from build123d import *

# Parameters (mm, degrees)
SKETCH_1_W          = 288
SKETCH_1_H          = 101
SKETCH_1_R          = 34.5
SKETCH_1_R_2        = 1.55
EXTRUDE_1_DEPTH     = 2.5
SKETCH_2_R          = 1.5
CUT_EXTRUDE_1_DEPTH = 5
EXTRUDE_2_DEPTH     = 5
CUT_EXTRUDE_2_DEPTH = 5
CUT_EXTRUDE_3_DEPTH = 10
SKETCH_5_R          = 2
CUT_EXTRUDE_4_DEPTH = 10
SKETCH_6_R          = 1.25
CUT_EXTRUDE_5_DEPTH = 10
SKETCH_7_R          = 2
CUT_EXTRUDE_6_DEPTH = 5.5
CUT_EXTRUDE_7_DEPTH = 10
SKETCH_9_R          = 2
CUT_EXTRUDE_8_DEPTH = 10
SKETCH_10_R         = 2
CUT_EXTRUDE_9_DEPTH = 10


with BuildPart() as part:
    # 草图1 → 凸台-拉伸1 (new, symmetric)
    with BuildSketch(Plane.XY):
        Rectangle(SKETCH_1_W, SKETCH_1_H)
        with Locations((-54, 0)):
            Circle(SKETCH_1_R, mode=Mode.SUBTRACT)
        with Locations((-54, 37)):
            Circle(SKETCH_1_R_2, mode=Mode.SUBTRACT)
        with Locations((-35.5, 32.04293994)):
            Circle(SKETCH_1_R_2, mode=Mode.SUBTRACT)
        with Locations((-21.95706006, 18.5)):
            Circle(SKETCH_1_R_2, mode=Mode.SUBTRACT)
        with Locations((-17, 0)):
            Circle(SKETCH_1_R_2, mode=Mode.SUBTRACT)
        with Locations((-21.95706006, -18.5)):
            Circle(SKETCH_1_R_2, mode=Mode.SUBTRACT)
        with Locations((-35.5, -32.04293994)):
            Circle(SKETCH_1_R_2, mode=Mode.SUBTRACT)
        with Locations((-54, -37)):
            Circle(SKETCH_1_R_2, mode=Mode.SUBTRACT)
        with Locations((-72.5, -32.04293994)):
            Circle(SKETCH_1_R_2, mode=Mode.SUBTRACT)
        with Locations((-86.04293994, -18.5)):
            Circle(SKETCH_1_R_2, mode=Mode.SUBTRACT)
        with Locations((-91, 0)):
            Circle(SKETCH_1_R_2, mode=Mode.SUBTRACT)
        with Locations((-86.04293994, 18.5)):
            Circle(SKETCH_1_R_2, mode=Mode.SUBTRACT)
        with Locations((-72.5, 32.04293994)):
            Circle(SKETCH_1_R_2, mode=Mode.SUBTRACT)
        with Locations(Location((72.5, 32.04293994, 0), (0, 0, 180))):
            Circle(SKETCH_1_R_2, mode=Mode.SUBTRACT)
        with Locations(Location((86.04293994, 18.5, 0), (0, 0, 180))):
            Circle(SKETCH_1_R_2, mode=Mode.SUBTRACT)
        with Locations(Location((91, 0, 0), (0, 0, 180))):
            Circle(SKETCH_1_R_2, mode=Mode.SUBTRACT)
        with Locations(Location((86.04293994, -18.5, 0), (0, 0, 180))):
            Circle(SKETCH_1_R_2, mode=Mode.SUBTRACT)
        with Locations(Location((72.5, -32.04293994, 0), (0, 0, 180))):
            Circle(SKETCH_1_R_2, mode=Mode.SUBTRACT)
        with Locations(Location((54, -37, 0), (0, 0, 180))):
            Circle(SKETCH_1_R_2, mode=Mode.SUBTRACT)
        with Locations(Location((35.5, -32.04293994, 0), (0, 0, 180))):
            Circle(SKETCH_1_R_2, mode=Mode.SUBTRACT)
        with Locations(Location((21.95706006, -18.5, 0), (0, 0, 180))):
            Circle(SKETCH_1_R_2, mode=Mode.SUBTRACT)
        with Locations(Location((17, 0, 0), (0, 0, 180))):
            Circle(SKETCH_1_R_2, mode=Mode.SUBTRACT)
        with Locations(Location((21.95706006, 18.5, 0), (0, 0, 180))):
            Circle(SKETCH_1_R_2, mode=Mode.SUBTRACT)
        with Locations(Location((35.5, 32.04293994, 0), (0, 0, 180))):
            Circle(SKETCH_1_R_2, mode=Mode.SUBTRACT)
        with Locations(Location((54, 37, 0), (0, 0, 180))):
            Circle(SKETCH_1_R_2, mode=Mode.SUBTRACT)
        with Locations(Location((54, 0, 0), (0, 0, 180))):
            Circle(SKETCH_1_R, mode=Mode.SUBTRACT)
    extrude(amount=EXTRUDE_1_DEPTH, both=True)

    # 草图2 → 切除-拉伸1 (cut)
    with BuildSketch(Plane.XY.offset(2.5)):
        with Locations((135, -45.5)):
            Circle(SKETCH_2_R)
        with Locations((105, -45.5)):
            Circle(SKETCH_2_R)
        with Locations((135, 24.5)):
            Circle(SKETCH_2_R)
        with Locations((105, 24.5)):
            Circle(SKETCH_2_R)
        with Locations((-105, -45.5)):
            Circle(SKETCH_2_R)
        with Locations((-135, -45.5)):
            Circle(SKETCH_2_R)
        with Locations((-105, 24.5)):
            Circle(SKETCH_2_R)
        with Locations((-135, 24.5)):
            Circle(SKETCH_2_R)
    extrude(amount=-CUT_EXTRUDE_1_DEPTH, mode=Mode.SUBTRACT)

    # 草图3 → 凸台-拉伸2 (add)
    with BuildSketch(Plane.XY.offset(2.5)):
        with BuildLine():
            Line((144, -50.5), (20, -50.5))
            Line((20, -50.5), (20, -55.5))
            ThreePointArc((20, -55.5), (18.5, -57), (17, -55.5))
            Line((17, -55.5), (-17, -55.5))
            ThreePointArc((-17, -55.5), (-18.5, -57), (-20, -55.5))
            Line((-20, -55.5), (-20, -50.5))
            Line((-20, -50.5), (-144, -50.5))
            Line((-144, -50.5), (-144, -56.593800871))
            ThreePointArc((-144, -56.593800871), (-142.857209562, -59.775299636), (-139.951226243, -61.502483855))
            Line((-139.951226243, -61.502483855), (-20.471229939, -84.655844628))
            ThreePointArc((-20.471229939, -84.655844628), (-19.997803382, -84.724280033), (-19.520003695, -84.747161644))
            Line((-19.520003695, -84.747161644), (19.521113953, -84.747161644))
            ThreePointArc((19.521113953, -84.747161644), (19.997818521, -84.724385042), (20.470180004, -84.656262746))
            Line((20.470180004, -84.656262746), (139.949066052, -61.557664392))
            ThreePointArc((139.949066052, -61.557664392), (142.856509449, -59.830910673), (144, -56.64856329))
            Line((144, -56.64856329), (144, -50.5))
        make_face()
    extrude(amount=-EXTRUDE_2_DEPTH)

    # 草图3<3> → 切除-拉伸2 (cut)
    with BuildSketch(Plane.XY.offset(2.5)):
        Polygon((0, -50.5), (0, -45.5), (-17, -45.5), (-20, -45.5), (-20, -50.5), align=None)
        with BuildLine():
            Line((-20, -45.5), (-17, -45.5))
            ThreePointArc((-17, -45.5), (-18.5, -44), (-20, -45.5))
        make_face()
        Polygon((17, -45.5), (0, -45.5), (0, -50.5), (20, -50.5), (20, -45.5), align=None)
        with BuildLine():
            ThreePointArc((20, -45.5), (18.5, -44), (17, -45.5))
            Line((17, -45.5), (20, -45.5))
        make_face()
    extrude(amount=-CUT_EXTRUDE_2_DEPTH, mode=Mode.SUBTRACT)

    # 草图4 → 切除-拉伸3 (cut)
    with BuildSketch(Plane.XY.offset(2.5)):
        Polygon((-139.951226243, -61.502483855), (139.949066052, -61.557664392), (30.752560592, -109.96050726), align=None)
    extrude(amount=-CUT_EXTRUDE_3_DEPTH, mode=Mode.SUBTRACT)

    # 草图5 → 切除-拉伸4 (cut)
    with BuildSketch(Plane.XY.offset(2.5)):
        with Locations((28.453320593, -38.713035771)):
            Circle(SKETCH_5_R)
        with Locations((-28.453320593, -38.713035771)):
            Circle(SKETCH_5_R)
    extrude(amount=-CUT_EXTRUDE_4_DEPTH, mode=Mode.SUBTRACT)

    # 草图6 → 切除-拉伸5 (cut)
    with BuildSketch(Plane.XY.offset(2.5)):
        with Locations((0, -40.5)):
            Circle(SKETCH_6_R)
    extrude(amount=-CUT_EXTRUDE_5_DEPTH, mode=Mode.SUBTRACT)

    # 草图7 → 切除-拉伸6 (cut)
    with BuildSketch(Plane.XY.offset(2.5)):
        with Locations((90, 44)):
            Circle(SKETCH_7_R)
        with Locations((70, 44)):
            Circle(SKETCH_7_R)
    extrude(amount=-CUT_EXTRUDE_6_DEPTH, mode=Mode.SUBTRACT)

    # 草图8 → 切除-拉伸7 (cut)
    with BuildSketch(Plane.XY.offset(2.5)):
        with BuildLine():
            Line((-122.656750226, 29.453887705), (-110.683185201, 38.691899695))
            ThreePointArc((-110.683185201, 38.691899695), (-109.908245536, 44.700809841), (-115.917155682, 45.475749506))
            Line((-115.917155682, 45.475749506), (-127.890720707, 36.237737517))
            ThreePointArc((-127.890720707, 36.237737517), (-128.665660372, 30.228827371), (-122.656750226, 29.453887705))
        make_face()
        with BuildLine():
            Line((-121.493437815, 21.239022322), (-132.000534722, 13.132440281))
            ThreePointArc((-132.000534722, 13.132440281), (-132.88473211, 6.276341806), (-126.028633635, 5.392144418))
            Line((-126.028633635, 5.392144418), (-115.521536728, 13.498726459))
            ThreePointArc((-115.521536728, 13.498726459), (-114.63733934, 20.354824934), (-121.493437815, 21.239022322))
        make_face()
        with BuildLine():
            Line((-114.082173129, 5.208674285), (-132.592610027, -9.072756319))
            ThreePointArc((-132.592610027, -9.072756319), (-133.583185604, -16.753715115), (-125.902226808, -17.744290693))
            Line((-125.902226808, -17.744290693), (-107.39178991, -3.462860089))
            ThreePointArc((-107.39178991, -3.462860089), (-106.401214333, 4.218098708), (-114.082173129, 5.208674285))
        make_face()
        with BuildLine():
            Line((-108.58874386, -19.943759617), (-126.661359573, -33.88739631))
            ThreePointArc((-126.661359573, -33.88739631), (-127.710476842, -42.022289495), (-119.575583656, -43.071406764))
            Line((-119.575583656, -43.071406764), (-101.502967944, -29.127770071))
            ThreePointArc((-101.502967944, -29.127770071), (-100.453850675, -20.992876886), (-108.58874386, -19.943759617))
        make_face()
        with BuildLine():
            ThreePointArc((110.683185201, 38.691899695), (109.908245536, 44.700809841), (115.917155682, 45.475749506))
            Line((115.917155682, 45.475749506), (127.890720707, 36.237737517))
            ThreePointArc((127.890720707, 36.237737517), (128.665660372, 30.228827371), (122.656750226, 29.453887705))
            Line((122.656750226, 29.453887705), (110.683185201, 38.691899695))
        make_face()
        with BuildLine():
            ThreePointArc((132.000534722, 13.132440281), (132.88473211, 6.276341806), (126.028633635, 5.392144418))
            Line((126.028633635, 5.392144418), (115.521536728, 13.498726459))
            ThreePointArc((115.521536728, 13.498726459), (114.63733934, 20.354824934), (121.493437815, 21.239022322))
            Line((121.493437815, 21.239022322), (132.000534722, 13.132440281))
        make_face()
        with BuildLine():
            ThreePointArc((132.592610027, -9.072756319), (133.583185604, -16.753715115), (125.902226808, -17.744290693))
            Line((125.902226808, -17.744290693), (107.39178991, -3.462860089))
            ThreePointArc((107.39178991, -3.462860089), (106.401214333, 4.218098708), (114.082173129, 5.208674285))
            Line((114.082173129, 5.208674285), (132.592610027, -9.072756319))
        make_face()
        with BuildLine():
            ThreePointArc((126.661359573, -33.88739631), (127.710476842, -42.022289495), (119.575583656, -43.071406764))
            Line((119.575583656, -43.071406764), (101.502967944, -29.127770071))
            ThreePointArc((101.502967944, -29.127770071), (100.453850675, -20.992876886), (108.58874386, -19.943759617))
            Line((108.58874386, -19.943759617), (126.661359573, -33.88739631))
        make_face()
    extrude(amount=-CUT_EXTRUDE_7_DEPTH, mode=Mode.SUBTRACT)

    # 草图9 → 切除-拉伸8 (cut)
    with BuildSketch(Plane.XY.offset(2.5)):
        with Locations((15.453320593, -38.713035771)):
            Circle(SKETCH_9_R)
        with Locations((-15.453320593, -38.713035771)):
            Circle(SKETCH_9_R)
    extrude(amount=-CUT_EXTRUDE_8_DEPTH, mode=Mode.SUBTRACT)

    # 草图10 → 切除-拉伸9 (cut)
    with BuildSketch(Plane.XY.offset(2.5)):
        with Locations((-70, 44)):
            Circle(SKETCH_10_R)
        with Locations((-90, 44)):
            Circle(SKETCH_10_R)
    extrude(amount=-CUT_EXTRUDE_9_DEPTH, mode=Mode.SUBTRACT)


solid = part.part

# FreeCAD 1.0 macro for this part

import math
import FreeCAD as App
import Part
import Sketcher

doc = App.newDocument("Part")
body = doc.addObject("PartDesign::Body", "Body")

sketch1 = body.newObject("Sketcher::SketchObject", "Sketch")
sketch1.AttachmentSupport = (doc.getObject("XY_Plane"), [""])
sketch1.MapMode = "FlatFace"
sketch1.addGeometry(Part.LineSegment(App.Vector(-144, 50.5, 0), App.Vector(-144, -50.5, 0)), False)
sketch1.addGeometry(Part.LineSegment(App.Vector(-144, -50.5, 0), App.Vector(144, -50.5, 0)), False)
sketch1.addGeometry(Part.LineSegment(App.Vector(144, -50.5, 0), App.Vector(144, 50.5, 0)), False)
sketch1.addGeometry(Part.LineSegment(App.Vector(144, 50.5, 0), App.Vector(-144, 50.5, 0)), False)
sketch1.addGeometry(Part.Circle(App.Vector(-72.5, -32, 0), App.Vector(0, 0, 1), 1.6), False)
sketch1.addGeometry(Part.Circle(App.Vector(-54, -37, 0), App.Vector(0, 0, 1), 1.6), False)
sketch1.addGeometry(Part.Circle(App.Vector(-35.5, -32, 0), App.Vector(0, 0, 1), 1.6), False)
sketch1.addGeometry(Part.Circle(App.Vector(-86, -18.5, 0), App.Vector(0, 0, 1), 1.6), False)
sketch1.addGeometry(Part.Circle(App.Vector(-22, -18.5, 0), App.Vector(0, 0, 1), 1.6), False)
sketch1.addGeometry(Part.Circle(App.Vector(35.5, -32, 0), App.Vector(0, 0, 1), 1.6), False)
sketch1.addGeometry(Part.Circle(App.Vector(54, -37, 0), App.Vector(0, 0, 1), 1.6), False)
sketch1.addGeometry(Part.Circle(App.Vector(72.5, -32, 0), App.Vector(0, 0, 1), 1.6), False)
sketch1.addGeometry(Part.Circle(App.Vector(22, -18.5, 0), App.Vector(0, 0, 1), 1.6), False)
sketch1.addGeometry(Part.Circle(App.Vector(86, -18.5, 0), App.Vector(0, 0, 1), 1.6), False)
sketch1.addGeometry(Part.Circle(App.Vector(-91, 0, 0), App.Vector(0, 0, 1), 1.6), False)
sketch1.addGeometry(Part.Circle(App.Vector(-54, 0, 0), App.Vector(0, 0, 1), 34.5), False)
sketch1.addGeometry(Part.Circle(App.Vector(-86, 18.5, 0), App.Vector(0, 0, 1), 1.6), False)
sketch1.addGeometry(Part.Circle(App.Vector(-17, 0, 0), App.Vector(0, 0, 1), 1.6), False)
sketch1.addGeometry(Part.Circle(App.Vector(-22, 18.5, 0), App.Vector(0, 0, 1), 1.6), False)
sketch1.addGeometry(Part.Circle(App.Vector(-72.5, 32, 0), App.Vector(0, 0, 1), 1.6), False)
sketch1.addGeometry(Part.Circle(App.Vector(-54, 37, 0), App.Vector(0, 0, 1), 1.6), False)
sketch1.addGeometry(Part.Circle(App.Vector(-35.5, 32, 0), App.Vector(0, 0, 1), 1.6), False)
sketch1.addGeometry(Part.Circle(App.Vector(17, 0, 0), App.Vector(0, 0, 1), 1.6), False)
sketch1.addGeometry(Part.Circle(App.Vector(22, 18.5, 0), App.Vector(0, 0, 1), 1.6), False)
sketch1.addGeometry(Part.Circle(App.Vector(54, 0, 0), App.Vector(0, 0, 1), 34.5), False)
sketch1.addGeometry(Part.Circle(App.Vector(91, 0, 0), App.Vector(0, 0, 1), 1.6), False)
sketch1.addGeometry(Part.Circle(App.Vector(86, 18.5, 0), App.Vector(0, 0, 1), 1.6), False)
sketch1.addGeometry(Part.Circle(App.Vector(35.5, 32, 0), App.Vector(0, 0, 1), 1.6), False)
sketch1.addGeometry(Part.Circle(App.Vector(54, 37, 0), App.Vector(0, 0, 1), 1.6), False)
sketch1.addGeometry(Part.Circle(App.Vector(72.5, 32, 0), App.Vector(0, 0, 1), 1.6), False)
sketch1.addConstraint(Sketcher.Constraint("Coincident", 0, 2, 1, 1))
sketch1.addConstraint(Sketcher.Constraint("Coincident", 1, 2, 2, 1))
sketch1.addConstraint(Sketcher.Constraint("Coincident", 2, 2, 3, 1))
sketch1.addConstraint(Sketcher.Constraint("Coincident", 3, 2, 0, 1))
sketch1.addConstraint(Sketcher.Constraint("Vertical", 0))
sketch1.addConstraint(Sketcher.Constraint("Horizontal", 1))
sketch1.addConstraint(Sketcher.Constraint("Vertical", 2))
sketch1.addConstraint(Sketcher.Constraint("Horizontal", 3))
sketch1.addConstraint(Sketcher.Constraint("Equal", 4, 5))
sketch1.addConstraint(Sketcher.Constraint("Equal", 5, 6))
sketch1.addConstraint(Sketcher.Constraint("Equal", 6, 7))
sketch1.addConstraint(Sketcher.Constraint("Equal", 7, 8))
sketch1.addConstraint(Sketcher.Constraint("Equal", 8, 9))
sketch1.addConstraint(Sketcher.Constraint("Equal", 9, 10))
sketch1.addConstraint(Sketcher.Constraint("Equal", 10, 11))
sketch1.addConstraint(Sketcher.Constraint("Equal", 11, 12))
sketch1.addConstraint(Sketcher.Constraint("Equal", 12, 13))
sketch1.addConstraint(Sketcher.Constraint("Equal", 13, 14))
sketch1.addConstraint(Sketcher.Constraint("Equal", 14, 16))
sketch1.addConstraint(Sketcher.Constraint("Equal", 16, 17))
sketch1.addConstraint(Sketcher.Constraint("Equal", 17, 18))
sketch1.addConstraint(Sketcher.Constraint("Equal", 18, 19))
sketch1.addConstraint(Sketcher.Constraint("Equal", 19, 20))
sketch1.addConstraint(Sketcher.Constraint("Equal", 20, 21))
sketch1.addConstraint(Sketcher.Constraint("Equal", 21, 22))
sketch1.addConstraint(Sketcher.Constraint("Equal", 22, 23))
sketch1.addConstraint(Sketcher.Constraint("Equal", 15, 24))
sketch1.addConstraint(Sketcher.Constraint("Equal", 23, 25))
sketch1.addConstraint(Sketcher.Constraint("Equal", 25, 26))
sketch1.addConstraint(Sketcher.Constraint("Equal", 26, 27))
sketch1.addConstraint(Sketcher.Constraint("Equal", 27, 28))
sketch1.addConstraint(Sketcher.Constraint("Equal", 28, 29))
sketch1.addConstraint(Sketcher.Constraint("Symmetric", 13, 3, 16, 3, -1, 1))
sketch1.addConstraint(Sketcher.Constraint("Symmetric", 12, 3, 18, 3, -1, 1))
sketch1.addConstraint(Sketcher.Constraint("Symmetric", 11, 3, 19, 3, -1, 1))
sketch1.addConstraint(Sketcher.Constraint("Symmetric", 10, 3, 20, 3, -1, 1))
sketch1.addConstraint(Sketcher.Constraint("Symmetric", 9, 3, 21, 3, -1, 1))
sketch1.addConstraint(Sketcher.Constraint("Symmetric", 17, 3, 22, 3, -1, 1))
sketch1.addConstraint(Sketcher.Constraint("Symmetric", 8, 3, 23, 3, -1, 1))
sketch1.addConstraint(Sketcher.Constraint("Symmetric", 15, 3, 24, 3, -1, 1))
sketch1.addConstraint(Sketcher.Constraint("Symmetric", 14, 3, 25, 3, -1, 1))
sketch1.addConstraint(Sketcher.Constraint("Symmetric", 7, 3, 26, 3, -1, 1))
sketch1.addConstraint(Sketcher.Constraint("Symmetric", 6, 3, 27, 3, -1, 1))
sketch1.addConstraint(Sketcher.Constraint("Symmetric", 5, 3, 28, 3, -1, 1))
sketch1.addConstraint(Sketcher.Constraint("Symmetric", 4, 3, 29, 3, -1, 1))
sketch1.addConstraint(Sketcher.Constraint("Symmetric", 0, 2, 2, 2, -1, 1))
sketch1.addConstraint(Sketcher.Constraint("Symmetric", 6, 3, 9, 3, -2))
sketch1.addConstraint(Sketcher.Constraint("Symmetric", 5, 3, 10, 3, -2))
sketch1.addConstraint(Sketcher.Constraint("Symmetric", 4, 3, 11, 3, -2))
sketch1.addConstraint(Sketcher.Constraint("Symmetric", 8, 3, 12, 3, -2))
sketch1.addConstraint(Sketcher.Constraint("Symmetric", 7, 3, 13, 3, -2))
sketch1.addConstraint(Sketcher.Constraint("PointOnObject", 14, 3, -1))
sketch1.addConstraint(Sketcher.Constraint("PointOnObject", 15, 3, -1))
sketch1.addConstraint(Sketcher.Constraint("PointOnObject", 17, 3, -1))
sketch1.addConstraint(Sketcher.Constraint("Horizontal", 4, 3, 6, 3))
sketch1.addConstraint(Sketcher.Constraint("Horizontal", 7, 3, 8, 3))
sketch1.addConstraint(Sketcher.Constraint("Vertical", 5, 3, 15, 3))
sketch1.addConstraint(Sketcher.Constraint("Diameter", 15, 69.0))
sketch1.addConstraint(Sketcher.Constraint("Diameter", 4, 3.1))
sketch1.addConstraint(Sketcher.Constraint("DistanceX", 1, 1, 1, 2, 288.0))
sketch1.addConstraint(Sketcher.Constraint("DistanceY", 0, 2, 0, 1, 101.0))
sketch1.addConstraint(Sketcher.Constraint("DistanceX", 5, 3, -1, 1, 54.0))
sketch1.addConstraint(Sketcher.Constraint("DistanceY", 5, 3, -1, 1, 37.0))
sketch1.addConstraint(Sketcher.Constraint("DistanceX", 14, 3, -1, 1, 91.0))
sketch1.addConstraint(Sketcher.Constraint("DistanceX", 17, 3, -1, 1, 17.0))
sketch1.addConstraint(Sketcher.Constraint("DistanceX", 4, 3, 6, 3, 37.0))
sketch1.addConstraint(Sketcher.Constraint("DistanceX", 6, 3, 9, 3, 71.0))
sketch1.addConstraint(Sketcher.Constraint("DistanceX", 8, 3, 13, 3, 108.0))
sketch1.addConstraint(Sketcher.Constraint("DistanceY", 7, 3, 16, 3, 37.0))
sketch1.addConstraint(Sketcher.Constraint("DistanceY", 4, 3, -1, 1, 32.04294))
sketch1.addConstraint(Sketcher.Constraint("DistanceX", 7, 3, -1, 1, 86.04294))
pad1 = body.newObject("PartDesign::Pad", "Pad")
pad1.Profile = sketch1
pad1.Length = 5
pad1.Midplane = True

sketch2 = body.newObject("Sketcher::SketchObject", "Sketch001")
sketch2.AttachmentSupport = (doc.getObject("XY_Plane"), [""])
sketch2.MapMode = "FlatFace"
sketch2.AttachmentOffset = App.Placement(App.Vector(0, 0, 2.5), App.Rotation())
sketch2.addGeometry(Part.Circle(App.Vector(135, -45.5, 0), App.Vector(0, 0, 1), 1.5), False)
sketch2.addGeometry(Part.Circle(App.Vector(105, -45.5, 0), App.Vector(0, 0, 1), 1.5), False)
sketch2.addGeometry(Part.Circle(App.Vector(135, 24.5, 0), App.Vector(0, 0, 1), 1.5), False)
sketch2.addGeometry(Part.Circle(App.Vector(105, 24.5, 0), App.Vector(0, 0, 1), 1.5), False)
sketch2.addGeometry(Part.Circle(App.Vector(-105, -45.5, 0), App.Vector(0, 0, 1), 1.5), False)
sketch2.addGeometry(Part.Circle(App.Vector(-135, -45.5, 0), App.Vector(0, 0, 1), 1.5), False)
sketch2.addGeometry(Part.Circle(App.Vector(-105, 24.5, 0), App.Vector(0, 0, 1), 1.5), False)
sketch2.addGeometry(Part.Circle(App.Vector(-135, 24.5, 0), App.Vector(0, 0, 1), 1.5), False)
sketch2.addConstraint(Sketcher.Constraint("Equal", 0, 1))
sketch2.addConstraint(Sketcher.Constraint("Equal", 1, 2))
sketch2.addConstraint(Sketcher.Constraint("Equal", 2, 3))
sketch2.addConstraint(Sketcher.Constraint("Equal", 3, 4))
sketch2.addConstraint(Sketcher.Constraint("Equal", 4, 5))
sketch2.addConstraint(Sketcher.Constraint("Equal", 5, 6))
sketch2.addConstraint(Sketcher.Constraint("Equal", 6, 7))
sketch2.addConstraint(Sketcher.Constraint("Symmetric", 1, 3, 4, 3, -2))
sketch2.addConstraint(Sketcher.Constraint("Symmetric", 0, 3, 5, 3, -2))
sketch2.addConstraint(Sketcher.Constraint("Symmetric", 3, 3, 6, 3, -2))
sketch2.addConstraint(Sketcher.Constraint("Symmetric", 2, 3, 7, 3, -2))
sketch2.addConstraint(Sketcher.Constraint("Horizontal", 0, 3, 1, 3))
sketch2.addConstraint(Sketcher.Constraint("Horizontal", 2, 3, 3, 3))
sketch2.addConstraint(Sketcher.Constraint("Vertical", 0, 3, 2, 3))
sketch2.addConstraint(Sketcher.Constraint("Vertical", 1, 3, 3, 3))
sketch2.addConstraint(Sketcher.Constraint("Diameter", 0, 3.0))
sketch2.addConstraint(Sketcher.Constraint("DistanceX", -1, 1, 0, 3, 135.0))
sketch2.addConstraint(Sketcher.Constraint("DistanceX", -1, 1, 1, 3, 105.0))
sketch2.addConstraint(Sketcher.Constraint("DistanceY", 0, 3, 2, 3, 70.0))
sketch2.addConstraint(Sketcher.Constraint("DistanceY", 0, 3, -1, 1, 45.5))
pocket1 = body.newObject("PartDesign::Pocket", "Pocket")
pocket1.Profile = sketch2
pocket1.Length = 5

sketch3 = body.newObject("Sketcher::SketchObject", "Sketch002")
sketch3.AttachmentSupport = (doc.getObject("XY_Plane"), [""])
sketch3.MapMode = "FlatFace"
sketch3.AttachmentOffset = App.Placement(App.Vector(0, 0, 2.5), App.Rotation())
sketch3.addGeometry(Part.LineSegment(App.Vector(144, -50.5, 0), App.Vector(20, -50.5, 0)), False)
sketch3.addGeometry(Part.LineSegment(App.Vector(20, -50.5, 0), App.Vector(20, -55.5, 0)), False)
sketch3.addGeometry(Part.ArcOfCircle(Part.Circle(App.Vector(18.5, -55.5, 0), App.Vector(0, 0, 1), 1.5), math.radians(180), math.radians(360)), False)
sketch3.addGeometry(Part.LineSegment(App.Vector(17, -55.5, 0), App.Vector(-17, -55.5, 0)), False)
sketch3.addGeometry(Part.ArcOfCircle(Part.Circle(App.Vector(-18.5, -55.5, 0), App.Vector(0, 0, 1), 1.5), math.radians(180), math.radians(360)), False)
sketch3.addGeometry(Part.LineSegment(App.Vector(-20, -55.5, 0), App.Vector(-20, -50.5, 0)), False)
sketch3.addGeometry(Part.LineSegment(App.Vector(-20, -50.5, 0), App.Vector(-144, -50.5, 0)), False)
sketch3.addGeometry(Part.LineSegment(App.Vector(-144, -50.5, 0), App.Vector(-144, -56.6, 0)), False)
sketch3.addGeometry(Part.ArcOfCircle(Part.Circle(App.Vector(-139, -56.6, 0), App.Vector(0, 0, 1), 5), math.radians(-180), math.radians(-101)), False)
sketch3.addGeometry(Part.LineSegment(App.Vector(-140, -61.5, 0), App.Vector(-20.5, -84.7, 0)), False)
sketch3.addGeometry(Part.ArcOfCircle(Part.Circle(App.Vector(-19.5, -79.7, 0), App.Vector(0, 0, 1), 5), math.radians(-100.97), math.radians(-90)), False)
sketch3.addGeometry(Part.LineSegment(App.Vector(-19.5, -84.7, 0), App.Vector(19.5, -84.7, 0)), False)
sketch3.addGeometry(Part.ArcOfCircle(Part.Circle(App.Vector(19.5, -79.7, 0), App.Vector(0, 0, 1), 5), math.radians(-90), math.radians(-79.06)), False)
sketch3.addGeometry(Part.LineSegment(App.Vector(20.5, -84.7, 0), App.Vector(139.9, -61.6, 0)), False)
sketch3.addGeometry(Part.ArcOfCircle(Part.Circle(App.Vector(139, -56.6, 0), App.Vector(0, 0, 1), 5), math.radians(-79), math.radians(0)), False)
sketch3.addGeometry(Part.LineSegment(App.Vector(144, -56.6, 0), App.Vector(144, -50.5, 0)), False)
sketch3.addConstraint(Sketcher.Constraint("Coincident", 0, 2, 1, 1))
sketch3.addConstraint(Sketcher.Constraint("Tangent", 1, 2, 2, 2))
sketch3.addConstraint(Sketcher.Constraint("Coincident", 2, 1, 3, 1))
sketch3.addConstraint(Sketcher.Constraint("Coincident", 3, 2, 4, 2))
sketch3.addConstraint(Sketcher.Constraint("Tangent", 4, 1, 5, 1))
sketch3.addConstraint(Sketcher.Constraint("Coincident", 5, 2, 6, 1))
sketch3.addConstraint(Sketcher.Constraint("Coincident", 6, 2, 7, 1))
sketch3.addConstraint(Sketcher.Constraint("Tangent", 7, 2, 8, 1))
sketch3.addConstraint(Sketcher.Constraint("Tangent", 8, 2, 9, 1))
sketch3.addConstraint(Sketcher.Constraint("Tangent", 9, 2, 10, 1))
sketch3.addConstraint(Sketcher.Constraint("Tangent", 10, 2, 11, 1))
sketch3.addConstraint(Sketcher.Constraint("Tangent", 11, 2, 12, 1))
sketch3.addConstraint(Sketcher.Constraint("Tangent", 12, 2, 13, 1))
sketch3.addConstraint(Sketcher.Constraint("Tangent", 13, 2, 14, 1))
sketch3.addConstraint(Sketcher.Constraint("Tangent", 14, 2, 15, 1))
sketch3.addConstraint(Sketcher.Constraint("Coincident", 15, 2, 0, 1))
sketch3.addConstraint(Sketcher.Constraint("Horizontal", 0))
sketch3.addConstraint(Sketcher.Constraint("Vertical", 1))
sketch3.addConstraint(Sketcher.Constraint("Horizontal", 3))
sketch3.addConstraint(Sketcher.Constraint("Vertical", 5))
sketch3.addConstraint(Sketcher.Constraint("Horizontal", 6))
sketch3.addConstraint(Sketcher.Constraint("Vertical", 7))
sketch3.addConstraint(Sketcher.Constraint("Horizontal", 11))
sketch3.addConstraint(Sketcher.Constraint("Vertical", 15))
sketch3.addConstraint(Sketcher.Constraint("Equal", 2, 4))
sketch3.addConstraint(Sketcher.Constraint("Equal", 8, 10))
sketch3.addConstraint(Sketcher.Constraint("Equal", 10, 12))
sketch3.addConstraint(Sketcher.Constraint("Equal", 12, 14))
sketch3.addConstraint(Sketcher.Constraint("Symmetric", 2, 3, 4, 3, -2))
sketch3.addConstraint(Sketcher.Constraint("Symmetric", 6, 2, 15, 2, -2))
sketch3.addConstraint(Sketcher.Constraint("Horizontal", 1, 2, 2, 1))
sketch3.addConstraint(Sketcher.Constraint("Radius", 8, 5.0))
sketch3.addConstraint(Sketcher.Constraint("Radius", 2, 1.5))
sketch3.addConstraint(Sketcher.Constraint("DistanceX", 0, 2, 0, 1, 124.0))
sketch3.addConstraint(Sketcher.Constraint("DistanceX", 3, 2, 3, 1, 34.0))
sketch3.addConstraint(Sketcher.Constraint("DistanceY", 1, 2, 1, 1, 5.0))
sketch3.addConstraint(Sketcher.Constraint("DistanceY", 2, 3, -1, 1, 55.5))
sketch3.addConstraint(Sketcher.Constraint("DistanceY", 7, 2, 7, 1, 6.093801))
sketch3.addConstraint(Sketcher.Constraint("Distance", 9, 121.702702))
sketch3.addConstraint(Sketcher.Constraint("DistanceY", 12, 3, 14, 3, 23.098598))
sketch3.addConstraint(Sketcher.Constraint("DistanceX", 11, 1, 11, 2, 39.041118))
sketch3.addConstraint(Sketcher.Constraint("DistanceY", 15, 1, 15, 2, 6.148563))
pad2 = body.newObject("PartDesign::Pad", "Pad001")
pad2.Profile = sketch3
pad2.Length = 5
pad2.Reversed = True

sketch4 = body.newObject("Sketcher::SketchObject", "Sketch003")
sketch4.AttachmentSupport = (doc.getObject("XY_Plane"), [""])
sketch4.MapMode = "FlatFace"
sketch4.AttachmentOffset = App.Placement(App.Vector(0, 0, 2.5), App.Rotation())
sketch4.addGeometry(Part.ArcOfCircle(Part.Circle(App.Vector(-18.5, -45.5, 0), App.Vector(0, 0, 1), 1.5), math.radians(0), math.radians(180)), False)
sketch4.addGeometry(Part.LineSegment(App.Vector(-20, -45.5, 0), App.Vector(-20, -50.5, 0)), False)
sketch4.addGeometry(Part.LineSegment(App.Vector(-20, -50.5, 0), App.Vector(20, -50.5, 0)), False)
sketch4.addGeometry(Part.LineSegment(App.Vector(20, -50.5, 0), App.Vector(20, -45.5, 0)), False)
sketch4.addGeometry(Part.ArcOfCircle(Part.Circle(App.Vector(18.5, -45.5, 0), App.Vector(0, 0, 1), 1.5), math.radians(0), math.radians(180)), False)
sketch4.addGeometry(Part.LineSegment(App.Vector(17, -45.5, 0), App.Vector(-17, -45.5, 0)), False)
sketch4.addConstraint(Sketcher.Constraint("Tangent", 0, 2, 1, 1))
sketch4.addConstraint(Sketcher.Constraint("Coincident", 1, 2, 2, 1))
sketch4.addConstraint(Sketcher.Constraint("Coincident", 2, 2, 3, 1))
sketch4.addConstraint(Sketcher.Constraint("Tangent", 3, 2, 4, 1))
sketch4.addConstraint(Sketcher.Constraint("Coincident", 4, 2, 5, 1))
sketch4.addConstraint(Sketcher.Constraint("Coincident", 5, 2, 0, 1))
sketch4.addConstraint(Sketcher.Constraint("Vertical", 1))
sketch4.addConstraint(Sketcher.Constraint("Horizontal", 2))
sketch4.addConstraint(Sketcher.Constraint("Vertical", 3))
sketch4.addConstraint(Sketcher.Constraint("Horizontal", 5))
sketch4.addConstraint(Sketcher.Constraint("Equal", 0, 4))
sketch4.addConstraint(Sketcher.Constraint("Symmetric", 0, 3, 4, 3, -2))
sketch4.addConstraint(Sketcher.Constraint("Horizontal", 3, 2, 4, 2))
sketch4.addConstraint(Sketcher.Constraint("Radius", 0, 1.5))
sketch4.addConstraint(Sketcher.Constraint("DistanceX", 2, 1, 2, 2, 40.0))
sketch4.addConstraint(Sketcher.Constraint("DistanceY", 1, 2, 1, 1, 5.0))
sketch4.addConstraint(Sketcher.Constraint("DistanceY", 0, 3, -1, 1, 45.5))
pocket2 = body.newObject("PartDesign::Pocket", "Pocket001")
pocket2.Profile = sketch4
pocket2.Length = 5

sketch5 = body.newObject("Sketcher::SketchObject", "Sketch004")
sketch5.AttachmentSupport = (doc.getObject("XY_Plane"), [""])
sketch5.MapMode = "FlatFace"
sketch5.AttachmentOffset = App.Placement(App.Vector(0, 0, 2.5), App.Rotation())
sketch5.addGeometry(Part.LineSegment(App.Vector(140, -62, 0), App.Vector(-140, -62, 0)), False)
sketch5.addGeometry(Part.LineSegment(App.Vector(-140, -62, 0), App.Vector(31, -110, 0)), False)
sketch5.addGeometry(Part.LineSegment(App.Vector(31, -110, 0), App.Vector(140, -62, 0)), False)
sketch5.addConstraint(Sketcher.Constraint("Coincident", 0, 2, 1, 1))
sketch5.addConstraint(Sketcher.Constraint("Coincident", 1, 2, 2, 1))
sketch5.addConstraint(Sketcher.Constraint("Coincident", 2, 2, 0, 1))
sketch5.addConstraint(Sketcher.Constraint("Distance", 1, 177.448479))
sketch5.addConstraint(Sketcher.Constraint("DistanceX", -1, 1, 1, 2, 30.752561))
sketch5.addConstraint(Sketcher.Constraint("DistanceY", 2, 2, 0, 2, 0.055181))
sketch5.addConstraint(Sketcher.Constraint("Distance", 0, 279.900298))
sketch5.addConstraint(Sketcher.Constraint("Distance", 2, 119.443342))
sketch5.addConstraint(Sketcher.Constraint("DistanceY", 0, 2, -1, 1, 61.502484))
pocket3 = body.newObject("PartDesign::Pocket", "Pocket002")
pocket3.Profile = sketch5
pocket3.Length = 10

sketch6 = body.newObject("Sketcher::SketchObject", "Sketch005")
sketch6.AttachmentSupport = (doc.getObject("XY_Plane"), [""])
sketch6.MapMode = "FlatFace"
sketch6.AttachmentOffset = App.Placement(App.Vector(0, 0, 2.5), App.Rotation())
sketch6.addGeometry(Part.Circle(App.Vector(28.5, -38.7, 0), App.Vector(0, 0, 1), 2), False)
sketch6.addGeometry(Part.Circle(App.Vector(-28.5, -38.7, 0), App.Vector(0, 0, 1), 2), False)
sketch6.addConstraint(Sketcher.Constraint("Equal", 0, 1))
sketch6.addConstraint(Sketcher.Constraint("Symmetric", 0, 3, 1, 3, -2))
sketch6.addConstraint(Sketcher.Constraint("Diameter", 0, 4.0))
sketch6.addConstraint(Sketcher.Constraint("DistanceX", -1, 1, 0, 3, 28.453321))
sketch6.addConstraint(Sketcher.Constraint("DistanceY", 0, 3, -1, 1, 38.713036))
pocket4 = body.newObject("PartDesign::Pocket", "Pocket003")
pocket4.Profile = sketch6
pocket4.Length = 10

sketch7 = body.newObject("Sketcher::SketchObject", "Sketch006")
sketch7.AttachmentSupport = (doc.getObject("XY_Plane"), [""])
sketch7.MapMode = "FlatFace"
sketch7.AttachmentOffset = App.Placement(App.Vector(0, 0, 2.5), App.Rotation())
sketch7.addGeometry(Part.Circle(App.Vector(0, -40.5, 0), App.Vector(0, 0, 1), 1.2), False)
sketch7.addConstraint(Sketcher.Constraint("PointOnObject", 0, 3, -2))
sketch7.addConstraint(Sketcher.Constraint("Diameter", 0, 2.5))
sketch7.addConstraint(Sketcher.Constraint("DistanceY", 0, 3, -1, 1, 40.5))
pocket5 = body.newObject("PartDesign::Pocket", "Pocket004")
pocket5.Profile = sketch7
pocket5.Length = 10

sketch8 = body.newObject("Sketcher::SketchObject", "Sketch007")
sketch8.AttachmentSupport = (doc.getObject("XY_Plane"), [""])
sketch8.MapMode = "FlatFace"
sketch8.AttachmentOffset = App.Placement(App.Vector(0, 0, 2.5), App.Rotation())
sketch8.addGeometry(Part.Circle(App.Vector(90, 44, 0), App.Vector(0, 0, 1), 2), False)
sketch8.addGeometry(Part.Circle(App.Vector(70, 44, 0), App.Vector(0, 0, 1), 2), False)
sketch8.addConstraint(Sketcher.Constraint("Equal", 0, 1))
sketch8.addConstraint(Sketcher.Constraint("Horizontal", 0, 3, 1, 3))
sketch8.addConstraint(Sketcher.Constraint("Diameter", 0, 4.0))
sketch8.addConstraint(Sketcher.Constraint("DistanceX", -1, 1, 0, 3, 90.0))
sketch8.addConstraint(Sketcher.Constraint("DistanceY", -1, 1, 0, 3, 44.0))
sketch8.addConstraint(Sketcher.Constraint("DistanceX", -1, 1, 1, 3, 70.0))
pocket6 = body.newObject("PartDesign::Pocket", "Pocket005")
pocket6.Profile = sketch8
pocket6.Length = 5.5

sketch9 = body.newObject("Sketcher::SketchObject", "Sketch008")
sketch9.AttachmentSupport = (doc.getObject("XY_Plane"), [""])
sketch9.MapMode = "FlatFace"
sketch9.AttachmentOffset = App.Placement(App.Vector(0, 0, 2.5), App.Rotation())
sketch9.addGeometry(Part.LineSegment(App.Vector(-122.7, 29.5, 0), App.Vector(-110.7, 38.7, 0)), False)
sketch9.addGeometry(Part.ArcOfCircle(Part.Circle(App.Vector(-113.3, 42.1, 0), App.Vector(0, 0, 1), 4.3), math.radians(-52), math.radians(128)), False)
sketch9.addGeometry(Part.LineSegment(App.Vector(-115.9, 45.5, 0), App.Vector(-127.9, 36.2, 0)), False)
sketch9.addGeometry(Part.ArcOfCircle(Part.Circle(App.Vector(-125.3, 32.8, 0), App.Vector(0, 0, 1), 4.3), math.radians(128), math.radians(308)), False)
sketch9.addGeometry(Part.LineSegment(App.Vector(-121.5, 21.2, 0), App.Vector(-132, 13.1, 0)), False)
sketch9.addGeometry(Part.ArcOfCircle(Part.Circle(App.Vector(-129, 9.3, 0), App.Vector(0, 0, 1), 4.9), math.radians(128), math.radians(308)), False)
sketch9.addGeometry(Part.LineSegment(App.Vector(-126, 5.4, 0), App.Vector(-115.5, 13.5, 0)), False)
sketch9.addGeometry(Part.ArcOfCircle(Part.Circle(App.Vector(-118.5, 17.4, 0), App.Vector(0, 0, 1), 4.9), math.radians(-52), math.radians(128)), False)
sketch9.addGeometry(Part.LineSegment(App.Vector(-114.1, 5.2, 0), App.Vector(-132.6, -9.1, 0)), False)
sketch9.addGeometry(Part.ArcOfCircle(Part.Circle(App.Vector(-129.2, -13.4, 0), App.Vector(0, 0, 1), 5.5), math.radians(128), math.radians(308)), False)
sketch9.addGeometry(Part.LineSegment(App.Vector(-125.9, -17.7, 0), App.Vector(-107.4, -3.5, 0)), False)
sketch9.addGeometry(Part.ArcOfCircle(Part.Circle(App.Vector(-110.7, 0.9, 0), App.Vector(0, 0, 1), 5.5), math.radians(-52), math.radians(128)), False)
sketch9.addGeometry(Part.LineSegment(App.Vector(-108.6, -19.9, 0), App.Vector(-126.7, -33.9, 0)), False)
sketch9.addGeometry(Part.ArcOfCircle(Part.Circle(App.Vector(-123.1, -38.5, 0), App.Vector(0, 0, 1), 5.8), math.radians(128), math.radians(308)), False)
sketch9.addGeometry(Part.LineSegment(App.Vector(-119.6, -43.1, 0), App.Vector(-101.5, -29.1, 0)), False)
sketch9.addGeometry(Part.ArcOfCircle(Part.Circle(App.Vector(-105, -24.5, 0), App.Vector(0, 0, 1), 5.8), math.radians(-52), math.radians(128)), False)
sketch9.addGeometry(Part.ArcOfCircle(Part.Circle(App.Vector(113.3, 42.1, 0), App.Vector(0, 0, 1), 4.3), math.radians(52), math.radians(232)), False)
sketch9.addGeometry(Part.LineSegment(App.Vector(110.7, 38.7, 0), App.Vector(122.7, 29.5, 0)), False)
sketch9.addGeometry(Part.ArcOfCircle(Part.Circle(App.Vector(125.3, 32.8, 0), App.Vector(0, 0, 1), 4.3), math.radians(-128), math.radians(52)), False)
sketch9.addGeometry(Part.LineSegment(App.Vector(127.9, 36.2, 0), App.Vector(115.9, 45.5, 0)), False)
sketch9.addGeometry(Part.ArcOfCircle(Part.Circle(App.Vector(129, 9.3, 0), App.Vector(0, 0, 1), 4.9), math.radians(-128), math.radians(52)), False)
sketch9.addGeometry(Part.LineSegment(App.Vector(132, 13.1, 0), App.Vector(121.5, 21.2, 0)), False)
sketch9.addGeometry(Part.ArcOfCircle(Part.Circle(App.Vector(118.5, 17.4, 0), App.Vector(0, 0, 1), 4.9), math.radians(52), math.radians(232)), False)
sketch9.addGeometry(Part.LineSegment(App.Vector(115.5, 13.5, 0), App.Vector(126, 5.4, 0)), False)
sketch9.addGeometry(Part.ArcOfCircle(Part.Circle(App.Vector(129.2, -13.4, 0), App.Vector(0, 0, 1), 5.5), math.radians(-128), math.radians(52)), False)
sketch9.addGeometry(Part.LineSegment(App.Vector(132.6, -9.1, 0), App.Vector(114.1, 5.2, 0)), False)
sketch9.addGeometry(Part.ArcOfCircle(Part.Circle(App.Vector(110.7, 0.9, 0), App.Vector(0, 0, 1), 5.5), math.radians(52), math.radians(232)), False)
sketch9.addGeometry(Part.LineSegment(App.Vector(107.4, -3.5, 0), App.Vector(125.9, -17.7, 0)), False)
sketch9.addGeometry(Part.ArcOfCircle(Part.Circle(App.Vector(123.1, -38.5, 0), App.Vector(0, 0, 1), 5.8), math.radians(-128), math.radians(52)), False)
sketch9.addGeometry(Part.LineSegment(App.Vector(126.7, -33.9, 0), App.Vector(108.6, -19.9, 0)), False)
sketch9.addGeometry(Part.ArcOfCircle(Part.Circle(App.Vector(105, -24.5, 0), App.Vector(0, 0, 1), 5.8), math.radians(52), math.radians(232)), False)
sketch9.addGeometry(Part.LineSegment(App.Vector(101.5, -29.1, 0), App.Vector(119.6, -43.1, 0)), False)
sketch9.addConstraint(Sketcher.Constraint("Tangent", 0, 2, 1, 1))
sketch9.addConstraint(Sketcher.Constraint("Tangent", 1, 2, 2, 1))
sketch9.addConstraint(Sketcher.Constraint("Tangent", 2, 2, 3, 1))
sketch9.addConstraint(Sketcher.Constraint("Tangent", 3, 2, 0, 1))
sketch9.addConstraint(Sketcher.Constraint("Tangent", 4, 2, 5, 1))
sketch9.addConstraint(Sketcher.Constraint("Tangent", 5, 2, 6, 1))
sketch9.addConstraint(Sketcher.Constraint("Tangent", 6, 2, 7, 1))
sketch9.addConstraint(Sketcher.Constraint("Tangent", 7, 2, 4, 1))
sketch9.addConstraint(Sketcher.Constraint("Tangent", 8, 2, 9, 1))
sketch9.addConstraint(Sketcher.Constraint("Tangent", 9, 2, 10, 1))
sketch9.addConstraint(Sketcher.Constraint("Tangent", 10, 2, 11, 1))
sketch9.addConstraint(Sketcher.Constraint("Tangent", 11, 2, 8, 1))
sketch9.addConstraint(Sketcher.Constraint("Tangent", 12, 2, 13, 1))
sketch9.addConstraint(Sketcher.Constraint("Tangent", 13, 2, 14, 1))
sketch9.addConstraint(Sketcher.Constraint("Tangent", 14, 2, 15, 1))
sketch9.addConstraint(Sketcher.Constraint("Tangent", 15, 2, 12, 1))
sketch9.addConstraint(Sketcher.Constraint("Tangent", 16, 2, 17, 1))
sketch9.addConstraint(Sketcher.Constraint("Tangent", 17, 2, 18, 1))
sketch9.addConstraint(Sketcher.Constraint("Tangent", 18, 2, 19, 1))
sketch9.addConstraint(Sketcher.Constraint("Tangent", 19, 2, 16, 1))
sketch9.addConstraint(Sketcher.Constraint("Tangent", 20, 2, 21, 1))
sketch9.addConstraint(Sketcher.Constraint("Tangent", 21, 2, 22, 1))
sketch9.addConstraint(Sketcher.Constraint("Tangent", 22, 2, 23, 1))
sketch9.addConstraint(Sketcher.Constraint("Tangent", 23, 2, 20, 1))
sketch9.addConstraint(Sketcher.Constraint("Tangent", 24, 2, 25, 1))
sketch9.addConstraint(Sketcher.Constraint("Tangent", 25, 2, 26, 1))
sketch9.addConstraint(Sketcher.Constraint("Tangent", 26, 2, 27, 1))
sketch9.addConstraint(Sketcher.Constraint("Tangent", 27, 2, 24, 1))
sketch9.addConstraint(Sketcher.Constraint("Tangent", 28, 2, 29, 1))
sketch9.addConstraint(Sketcher.Constraint("Tangent", 29, 2, 30, 1))
sketch9.addConstraint(Sketcher.Constraint("Tangent", 30, 2, 31, 1))
sketch9.addConstraint(Sketcher.Constraint("Tangent", 31, 2, 28, 1))
sketch9.addConstraint(Sketcher.Constraint("Equal", 1, 3))
sketch9.addConstraint(Sketcher.Constraint("Equal", 5, 7))
sketch9.addConstraint(Sketcher.Constraint("Equal", 9, 11))
sketch9.addConstraint(Sketcher.Constraint("Equal", 13, 15))
sketch9.addConstraint(Sketcher.Constraint("Equal", 3, 16))
sketch9.addConstraint(Sketcher.Constraint("Equal", 16, 18))
sketch9.addConstraint(Sketcher.Constraint("Equal", 7, 20))
sketch9.addConstraint(Sketcher.Constraint("Equal", 20, 22))
sketch9.addConstraint(Sketcher.Constraint("Equal", 11, 24))
sketch9.addConstraint(Sketcher.Constraint("Equal", 24, 26))
sketch9.addConstraint(Sketcher.Constraint("Equal", 15, 28))
sketch9.addConstraint(Sketcher.Constraint("Equal", 28, 30))
sketch9.addConstraint(Sketcher.Constraint("Symmetric", 1, 3, 16, 3, -2))
sketch9.addConstraint(Sketcher.Constraint("Symmetric", 3, 3, 18, 3, -2))
sketch9.addConstraint(Sketcher.Constraint("Symmetric", 5, 3, 20, 3, -2))
sketch9.addConstraint(Sketcher.Constraint("Symmetric", 7, 3, 22, 3, -2))
sketch9.addConstraint(Sketcher.Constraint("Symmetric", 9, 3, 24, 3, -2))
sketch9.addConstraint(Sketcher.Constraint("Symmetric", 11, 3, 26, 3, -2))
sketch9.addConstraint(Sketcher.Constraint("Symmetric", 13, 3, 28, 3, -2))
sketch9.addConstraint(Sketcher.Constraint("Symmetric", 15, 3, 30, 3, -2))
sketch9.addConstraint(Sketcher.Constraint("Parallel", 2, 4))
sketch9.addConstraint(Sketcher.Constraint("Parallel", 6, 8))
sketch9.addConstraint(Sketcher.Constraint("Parallel", 10, 12))
sketch9.addConstraint(Sketcher.Constraint("Radius", 1, 4.28413))
sketch9.addConstraint(Sketcher.Constraint("Radius", 9, 5.476238))
sketch9.addConstraint(Sketcher.Constraint("Radius", 5, 4.888143))
sketch9.addConstraint(Sketcher.Constraint("Radius", 13, 5.799876))
sketch9.addConstraint(Sketcher.Constraint("DistanceY", 13, 3, -1, 1, 38.479402))
sketch9.addConstraint(Sketcher.Constraint("DistanceY", -1, 1, 0, 2, 38.6919))
sketch9.addConstraint(Sketcher.Constraint("DistanceX", 5, 3, 0, 2, 18.331399))
sketch9.addConstraint(Sketcher.Constraint("DistanceX", 4, 2, 3, 3, 6.726799))
sketch9.addConstraint(Sketcher.Constraint("DistanceX", 4, 2, 5, 2, 5.971901))
sketch9.addConstraint(Sketcher.Constraint("DistanceY", 8, 2, 5, 2, 14.464901))
sketch9.addConstraint(Sketcher.Constraint("DistanceY", 11, 2, 7, 3, 12.1602))
sketch9.addConstraint(Sketcher.Constraint("DistanceY", 15, 2, 10, 2, 16.4809))
sketch9.addConstraint(Sketcher.Constraint("Distance", 4, 13.270861))
sketch9.addConstraint(Sketcher.Constraint("DistanceX", 1, 3, -1, 1, 113.30017))
sketch9.addConstraint(Sketcher.Constraint("DistanceX", 9, 3, -1, 1, 129.247418))
sketch9.addConstraint(Sketcher.Constraint("DistanceX", 13, 3, -1, 1, 123.118472))
sketch9.addConstraint(Sketcher.Constraint("DistanceY", -1, 1, 4, 2, 13.13244))
pocket7 = body.newObject("PartDesign::Pocket", "Pocket006")
pocket7.Profile = sketch9
pocket7.Length = 10

sketch10 = body.newObject("Sketcher::SketchObject", "Sketch009")
sketch10.AttachmentSupport = (doc.getObject("XY_Plane"), [""])
sketch10.MapMode = "FlatFace"
sketch10.AttachmentOffset = App.Placement(App.Vector(0, 0, 2.5), App.Rotation())
sketch10.addGeometry(Part.Circle(App.Vector(15.5, -38.7, 0), App.Vector(0, 0, 1), 2), False)
sketch10.addGeometry(Part.Circle(App.Vector(-15.5, -38.7, 0), App.Vector(0, 0, 1), 2), False)
sketch10.addConstraint(Sketcher.Constraint("Equal", 0, 1))
sketch10.addConstraint(Sketcher.Constraint("Symmetric", 0, 3, 1, 3, -2))
sketch10.addConstraint(Sketcher.Constraint("Diameter", 0, 4.0))
sketch10.addConstraint(Sketcher.Constraint("DistanceX", -1, 1, 0, 3, 15.453321))
sketch10.addConstraint(Sketcher.Constraint("DistanceY", 0, 3, -1, 1, 38.713036))
pocket8 = body.newObject("PartDesign::Pocket", "Pocket007")
pocket8.Profile = sketch10
pocket8.Length = 10

sketch11 = body.newObject("Sketcher::SketchObject", "Sketch010")
sketch11.AttachmentSupport = (doc.getObject("XY_Plane"), [""])
sketch11.MapMode = "FlatFace"
sketch11.AttachmentOffset = App.Placement(App.Vector(0, 0, 2.5), App.Rotation())
sketch11.addGeometry(Part.Circle(App.Vector(-70, 44, 0), App.Vector(0, 0, 1), 2), False)
sketch11.addGeometry(Part.Circle(App.Vector(-90, 44, 0), App.Vector(0, 0, 1), 2), False)
sketch11.addConstraint(Sketcher.Constraint("Equal", 0, 1))
sketch11.addConstraint(Sketcher.Constraint("Horizontal", 0, 3, 1, 3))
sketch11.addConstraint(Sketcher.Constraint("Diameter", 0, 4.0))
sketch11.addConstraint(Sketcher.Constraint("DistanceX", 0, 3, -1, 1, 70.0))
sketch11.addConstraint(Sketcher.Constraint("DistanceY", -1, 1, 0, 3, 44.0))
sketch11.addConstraint(Sketcher.Constraint("DistanceX", 1, 3, -1, 1, 90.0))
pocket9 = body.newObject("PartDesign::Pocket", "Pocket008")
pocket9.Profile = sketch11
pocket9.Length = 10

doc.recompute()
